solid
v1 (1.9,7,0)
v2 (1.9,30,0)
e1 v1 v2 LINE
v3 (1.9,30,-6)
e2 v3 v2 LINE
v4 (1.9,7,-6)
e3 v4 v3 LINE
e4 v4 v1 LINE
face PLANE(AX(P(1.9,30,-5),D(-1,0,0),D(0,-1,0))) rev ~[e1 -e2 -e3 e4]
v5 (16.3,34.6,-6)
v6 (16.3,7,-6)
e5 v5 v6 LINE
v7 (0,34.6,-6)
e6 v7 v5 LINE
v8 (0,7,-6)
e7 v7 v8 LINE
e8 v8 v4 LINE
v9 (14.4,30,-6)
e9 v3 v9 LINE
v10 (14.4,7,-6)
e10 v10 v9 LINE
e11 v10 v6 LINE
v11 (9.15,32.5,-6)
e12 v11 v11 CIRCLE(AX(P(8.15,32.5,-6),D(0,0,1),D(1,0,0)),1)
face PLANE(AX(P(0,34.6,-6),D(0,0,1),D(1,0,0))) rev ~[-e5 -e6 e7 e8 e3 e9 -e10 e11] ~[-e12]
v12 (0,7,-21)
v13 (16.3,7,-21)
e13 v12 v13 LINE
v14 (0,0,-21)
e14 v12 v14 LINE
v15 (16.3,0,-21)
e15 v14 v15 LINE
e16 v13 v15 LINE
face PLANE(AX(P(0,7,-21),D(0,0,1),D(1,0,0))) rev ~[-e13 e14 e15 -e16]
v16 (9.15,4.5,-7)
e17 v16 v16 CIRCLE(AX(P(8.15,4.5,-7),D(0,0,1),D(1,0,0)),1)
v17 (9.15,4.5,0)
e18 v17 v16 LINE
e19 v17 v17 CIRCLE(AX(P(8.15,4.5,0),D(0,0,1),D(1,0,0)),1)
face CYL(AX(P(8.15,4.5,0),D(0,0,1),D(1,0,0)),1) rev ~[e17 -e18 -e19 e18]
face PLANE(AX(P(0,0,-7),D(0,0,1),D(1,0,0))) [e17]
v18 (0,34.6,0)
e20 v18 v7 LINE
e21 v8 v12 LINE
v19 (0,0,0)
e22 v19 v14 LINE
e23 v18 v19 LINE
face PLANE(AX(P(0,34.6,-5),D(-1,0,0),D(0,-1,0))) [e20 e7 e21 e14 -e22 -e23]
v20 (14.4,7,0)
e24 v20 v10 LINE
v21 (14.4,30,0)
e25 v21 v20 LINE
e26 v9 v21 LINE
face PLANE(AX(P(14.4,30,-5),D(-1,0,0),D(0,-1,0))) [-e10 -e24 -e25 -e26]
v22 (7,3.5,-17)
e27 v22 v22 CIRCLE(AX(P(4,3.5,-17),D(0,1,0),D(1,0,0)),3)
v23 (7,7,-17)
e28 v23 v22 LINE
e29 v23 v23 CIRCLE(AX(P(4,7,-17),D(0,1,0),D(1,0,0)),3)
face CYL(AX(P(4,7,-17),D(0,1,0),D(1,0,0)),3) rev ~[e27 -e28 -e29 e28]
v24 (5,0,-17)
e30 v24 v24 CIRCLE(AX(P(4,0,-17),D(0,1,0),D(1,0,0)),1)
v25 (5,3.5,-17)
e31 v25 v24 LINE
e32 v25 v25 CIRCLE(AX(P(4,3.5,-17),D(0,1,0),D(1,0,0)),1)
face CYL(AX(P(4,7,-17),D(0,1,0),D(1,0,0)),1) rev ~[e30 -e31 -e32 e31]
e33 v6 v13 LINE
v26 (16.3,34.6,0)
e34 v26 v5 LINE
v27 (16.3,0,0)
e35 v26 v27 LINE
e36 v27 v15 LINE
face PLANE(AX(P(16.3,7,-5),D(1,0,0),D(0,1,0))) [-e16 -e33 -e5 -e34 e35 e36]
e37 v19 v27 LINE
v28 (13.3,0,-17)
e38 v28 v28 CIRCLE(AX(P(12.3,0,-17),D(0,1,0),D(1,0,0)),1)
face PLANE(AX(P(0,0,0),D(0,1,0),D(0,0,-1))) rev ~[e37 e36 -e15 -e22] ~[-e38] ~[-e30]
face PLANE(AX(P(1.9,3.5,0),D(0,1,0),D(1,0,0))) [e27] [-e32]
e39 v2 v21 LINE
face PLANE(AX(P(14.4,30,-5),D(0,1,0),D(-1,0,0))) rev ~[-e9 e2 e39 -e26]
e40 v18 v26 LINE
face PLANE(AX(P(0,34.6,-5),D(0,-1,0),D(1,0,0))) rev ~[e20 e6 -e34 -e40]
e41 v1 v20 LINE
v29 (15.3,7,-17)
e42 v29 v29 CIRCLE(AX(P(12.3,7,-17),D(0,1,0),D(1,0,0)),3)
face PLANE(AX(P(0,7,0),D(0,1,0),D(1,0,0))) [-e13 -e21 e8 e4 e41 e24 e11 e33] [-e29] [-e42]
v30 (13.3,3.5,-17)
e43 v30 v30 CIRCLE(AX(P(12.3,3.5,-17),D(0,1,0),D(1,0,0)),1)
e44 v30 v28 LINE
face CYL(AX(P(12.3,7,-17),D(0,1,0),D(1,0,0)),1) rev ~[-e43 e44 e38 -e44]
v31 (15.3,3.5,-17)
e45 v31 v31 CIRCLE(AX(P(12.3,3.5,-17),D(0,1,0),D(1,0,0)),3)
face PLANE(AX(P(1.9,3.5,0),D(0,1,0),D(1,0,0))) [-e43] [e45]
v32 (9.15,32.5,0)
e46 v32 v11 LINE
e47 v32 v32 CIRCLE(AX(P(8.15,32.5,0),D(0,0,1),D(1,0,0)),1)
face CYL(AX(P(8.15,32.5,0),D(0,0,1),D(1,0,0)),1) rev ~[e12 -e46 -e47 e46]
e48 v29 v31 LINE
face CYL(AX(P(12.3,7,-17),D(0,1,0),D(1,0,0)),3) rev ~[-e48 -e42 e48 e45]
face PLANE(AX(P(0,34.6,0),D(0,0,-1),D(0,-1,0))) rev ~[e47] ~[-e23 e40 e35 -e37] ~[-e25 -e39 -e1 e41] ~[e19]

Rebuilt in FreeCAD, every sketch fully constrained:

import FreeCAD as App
import Part
import Sketcher
Q = App.Units.Quantity


def add_polygon(sketch, points):
    """Adds a closed chain of lines whose ends are joined by coincident constraints."""
    first, n = sketch.GeometryCount, len(points)
    for a, b in zip(points, points[1:] + points[:1]):
        sketch.addGeometry(Part.LineSegment(App.Vector(*a, 0), App.Vector(*b, 0)), False)
    for i in range(n):
        sketch.addConstraint(Sketcher.Constraint("Coincident", first + i, 2, first + (i + 1) % n, 1))

doc = App.newDocument("Part")
body = doc.addObject("PartDesign::Body", "Body")

sketch1 = doc.addObject("Sketcher::SketchObject", "Sketch")
body.addObject(sketch1)
sketch1.AttachmentSupport = (doc.YZ_Plane, [""])
sketch1.MapMode = "FlatFace"
add_polygon(sketch1, [(35, -5), (35, 0), (0, 0), (0, -40), (7, -40), (7, -5)])
sketch1.addConstraint(Sketcher.Constraint("Vertical", 0))
sketch1.addConstraint(Sketcher.Constraint("Horizontal", 1))
sketch1.addConstraint(Sketcher.Constraint("Vertical", 2))
sketch1.addConstraint(Sketcher.Constraint("Horizontal", 3))
sketch1.addConstraint(Sketcher.Constraint("Vertical", 4))
sketch1.addConstraint(Sketcher.Constraint("Horizontal", 5))
sketch1.addConstraint(Sketcher.Constraint("Coincident", 1, 2, -1, 1))
sketch1.addConstraint(Sketcher.Constraint("DistanceX", 3, 1, 3, 2, Q("7 mm")))
sketch1.addConstraint(Sketcher.Constraint("DistanceY", 0, 1, 0, 2, Q("5 mm")))
sketch1.addConstraint(Sketcher.Constraint("DistanceY", 2, 2, 2, 1, Q("40 mm")))
sketch1.addConstraint(Sketcher.Constraint("DistanceX", 1, 2, 1, 1, Q("34.6 mm")))
pad1 = doc.addObject("PartDesign::Pad", "Pad")
body.addObject(pad1)
pad1.Profile = sketch1
pad1.Length = 16.3

sketch2 = doc.addObject("Sketcher::SketchObject", "Sketch001")
body.addObject(sketch2)
sketch2.AttachmentSupport = (doc.XZ_Plane, [""])
sketch2.MapMode = "FlatFace"
sketch2.AttachmentOffset = App.Placement(App.Vector(0, 0, -7), App.Rotation())
sketch2.addGeometry(Part.Circle(App.Vector(12.3, -17, 0), App.Vector(0, 0, 1), 1), False)
sketch2.addGeometry(Part.Circle(App.Vector(4, -17, 0), App.Vector(0, 0, 1), 1), False)
sketch2.addConstraint(Sketcher.Constraint("Equal", 0, 1))
sketch2.addConstraint(Sketcher.Constraint("Horizontal", 0, 3, 1, 3))
sketch2.addConstraint(Sketcher.Constraint("Diameter", 0, Q("2 mm")))
sketch2.addConstraint(Sketcher.Constraint("DistanceX", -1, 1, 1, 3, Q("4 mm")))
sketch2.addConstraint(Sketcher.Constraint("DistanceY", 0, 3, -1, 1, Q("17 mm")))
sketch2.addConstraint(Sketcher.Constraint("DistanceX", -1, 1, 0, 3, Q("12.3 mm")))
pocket1 = doc.addObject("PartDesign::Pocket", "Pocket")
body.addObject(pocket1)
pocket1.Profile = sketch2
pocket1.Type = "ThroughAll"
pocket1.Reversed = True

sketch3 = doc.addObject("Sketcher::SketchObject", "Sketch002")
body.addObject(sketch3)
sketch3.AttachmentSupport = (doc.XY_Plane, [""])
sketch3.MapMode = "FlatFace"
sketch3.AttachmentOffset = App.Placement(App.Vector(0, 0, -5), App.Rotation())
add_polygon(sketch3, [(14, 7), (2, 7), (2, 30), (14, 30)])
sketch3.addConstraint(Sketcher.Constraint("Horizontal", 0))
sketch3.addConstraint(Sketcher.Constraint("Vertical", 1))
sketch3.addConstraint(Sketcher.Constraint("Horizontal", 2))
sketch3.addConstraint(Sketcher.Constraint("Vertical", 3))
sketch3.addConstraint(Sketcher.Constraint("DistanceY", 1, 1, 1, 2, Q("23 mm")))
sketch3.addConstraint(Sketcher.Constraint("DistanceX", 0, 2, 0, 1, Q("12.5 mm")))
sketch3.addConstraint(Sketcher.Constraint("DistanceX", -1, 1, 0, 2, Q("1.9 mm")))
sketch3.addConstraint(Sketcher.Constraint("DistanceY", -1, 1, 0, 2, Q("7 mm")))
pocket2 = doc.addObject("PartDesign::Pocket", "Pocket001")
body.addObject(pocket2)
pocket2.Profile = sketch3
pocket2.Length = 16.3
pocket2.Reversed = True

sketch4 = doc.addObject("Sketcher::SketchObject", "Sketch003")
body.addObject(sketch4)
sketch4.AttachmentSupport = (doc.XY_Plane, [""])
sketch4.MapMode = "FlatFace"
sketch4.AttachmentOffset = App.Placement(App.Vector(0, 0, -5), App.Rotation())
add_polygon(sketch4, [(0, 7), (0, 34.6), (16.3, 34.6), (16.3, 7), (14.4, 7), (14.4, 30), (1.9, 30), (1.9, 7)])
sketch4.addConstraint(Sketcher.Constraint("Vertical", 0))
sketch4.addConstraint(Sketcher.Constraint("Horizontal", 1))
sketch4.addConstraint(Sketcher.Constraint("Vertical", 2))
sketch4.addConstraint(Sketcher.Constraint("Horizontal", 3))
sketch4.addConstraint(Sketcher.Constraint("Vertical", 4))
sketch4.addConstraint(Sketcher.Constraint("Horizontal", 5))
sketch4.addConstraint(Sketcher.Constraint("Vertical", 6))
sketch4.addConstraint(Sketcher.Constraint("Horizontal", 7))
sketch4.addConstraint(Sketcher.Constraint("PointOnObject", 0, 2, -2))
sketch4.addConstraint(Sketcher.Constraint("Horizontal", 3, 2, 6, 2))
sketch4.addConstraint(Sketcher.Constraint("Equal", 3, 7))
sketch4.addConstraint(Sketcher.Constraint("DistanceX", 3, 2, 3, 1, Q("1.9 mm")))
sketch4.addConstraint(Sketcher.Constraint("DistanceY", 4, 1, 4, 2, Q("23 mm")))
sketch4.addConstraint(Sketcher.Constraint("DistanceX", 1, 1, 1, 2, Q("16.3 mm")))
sketch4.addConstraint(Sketcher.Constraint("DistanceY", 0, 1, 0, 2, Q("27.6 mm")))
sketch4.addConstraint(Sketcher.Constraint("DistanceY", -1, 1, 2, 2, Q("7 mm")))
pad2 = doc.addObject("PartDesign::Pad", "Pad001")
body.addObject(pad2)
pad2.Profile = sketch4
pad2.Length = 4
pad2.Reversed = True

sketch5 = doc.addObject("Sketcher::SketchObject", "Sketch004")
body.addObject(sketch5)
sketch5.AttachmentSupport = (doc.XY_Plane, [""])
sketch5.MapMode = "FlatFace"
sketch5.addGeometry(Part.Circle(App.Vector(8.2, 32.5, 0), App.Vector(0, 0, 1), 1), False)
sketch5.addGeometry(Part.Circle(App.Vector(8.2, 4.5, 0), App.Vector(0, 0, 1), 1), False)
sketch5.addConstraint(Sketcher.Constraint("Equal", 0, 1))
sketch5.addConstraint(Sketcher.Constraint("Vertical", 0, 3, 1, 3))
sketch5.addConstraint(Sketcher.Constraint("Diameter", 0, Q("2 mm")))
sketch5.addConstraint(Sketcher.Constraint("DistanceX", -1, 1, 0, 3, Q("8.15 mm")))
sketch5.addConstraint(Sketcher.Constraint("DistanceY", 1, 3, 0, 3, Q("28 mm")))
sketch5.addConstraint(Sketcher.Constraint("DistanceY", -1, 1, 0, 3, Q("32.5 mm")))
pocket3 = doc.addObject("PartDesign::Pocket", "Pocket002")
body.addObject(pocket3)
pocket3.Profile = sketch5
pocket3.Length = 7

sketch6 = doc.addObject("Sketcher::SketchObject", "Sketch005")
body.addObject(sketch6)
sketch6.AttachmentSupport = (doc.XZ_Plane, [""])
sketch6.MapMode = "FlatFace"
sketch6.AttachmentOffset = App.Placement(App.Vector(0, 0, -34.6), App.Rotation())
add_polygon(sketch6, [(0, -6), (16.3, -6), (16.3, -9), (0, -9)])
sketch6.addConstraint(Sketcher.Constraint("Horizontal", 0))
sketch6.addConstraint(Sketcher.Constraint("Vertical", 1))
sketch6.addConstraint(Sketcher.Constraint("Horizontal", 2))
sketch6.addConstraint(Sketcher.Constraint("Vertical", 3))
sketch6.addConstraint(Sketcher.Constraint("PointOnObject", 2, 2, -2))
sketch6.addConstraint(Sketcher.Constraint("DistanceY", 0, 2, -1, 1, Q("6 mm")))
sketch6.addConstraint(Sketcher.Constraint("DistanceY", 1, 2, 1, 1, Q("3 mm")))
sketch6.addConstraint(Sketcher.Constraint("DistanceX", 0, 1, 0, 2, Q("16.3 mm")))
pocket4 = doc.addObject("PartDesign::Pocket", "Pocket003")
body.addObject(pocket4)
pocket4.Profile = sketch6
pocket4.Length = 27.6
pocket4.Reversed = True

sketch7 = doc.addObject("Sketcher::SketchObject", "Sketch006")
body.addObject(sketch7)
sketch7.AttachmentSupport = (doc.XZ_Plane, [""])
sketch7.MapMode = "FlatFace"
sketch7.AttachmentOffset = App.Placement(App.Vector(0, 0, -7), App.Rotation())
add_polygon(sketch7, [(16, -40), (0, -40), (0, -21), (16, -21)])
sketch7.addConstraint(Sketcher.Constraint("Horizontal", 0))
sketch7.addConstraint(Sketcher.Constraint("Vertical", 1))
sketch7.addConstraint(Sketcher.Constraint("Horizontal", 2))
sketch7.addConstraint(Sketcher.Constraint("Vertical", 3))
sketch7.addConstraint(Sketcher.Constraint("PointOnObject", 0, 2, -2))
sketch7.addConstraint(Sketcher.Constraint("DistanceY", 1, 1, 1, 2, Q("19 mm")))
sketch7.addConstraint(Sketcher.Constraint("DistanceX", 0, 2, 0, 1, Q("16.3 mm")))
sketch7.addConstraint(Sketcher.Constraint("DistanceY", 0, 2, -1, 1, Q("40 mm")))
pocket5 = doc.addObject("PartDesign::Pocket", "Pocket004")
body.addObject(pocket5)
pocket5.Profile = sketch7
pocket5.Length = 10
pocket5.Reversed = True

sketch8 = doc.addObject("Sketcher::SketchObject", "Sketch007")
body.addObject(sketch8)
sketch8.AttachmentSupport = (doc.XZ_Plane, [""])
sketch8.MapMode = "FlatFace"
sketch8.AttachmentOffset = App.Placement(App.Vector(0, 0, -7), App.Rotation())
sketch8.addGeometry(Part.Circle(App.Vector(4, -17, 0), App.Vector(0, 0, 1), 3), False)
sketch8.addGeometry(Part.Circle(App.Vector(4, -17, 0), App.Vector(0, 0, 1), 1), False)
sketch8.addGeometry(Part.Circle(App.Vector(12.3, -17, 0), App.Vector(0, 0, 1), 3), False)
sketch8.addGeometry(Part.Circle(App.Vector(12.3, -17, 0), App.Vector(0, 0, 1), 1), False)
sketch8.addConstraint(Sketcher.Constraint("Coincident", 1, 3, 0, 3))
sketch8.addConstraint(Sketcher.Constraint("Coincident", 3, 3, 2, 3))
sketch8.addConstraint(Sketcher.Constraint("Equal", 0, 2))
sketch8.addConstraint(Sketcher.Constraint("Equal", 1, 3))
sketch8.addConstraint(Sketcher.Constraint("Horizontal", 1, 3, 2, 3))
sketch8.addConstraint(Sketcher.Constraint("Diameter", 0, Q("6 mm")))
sketch8.addConstraint(Sketcher.Constraint("Diameter", 1, Q("2 mm")))
sketch8.addConstraint(Sketcher.Constraint("DistanceX", -1, 1, 0, 3, Q("4 mm")))
sketch8.addConstraint(Sketcher.Constraint("DistanceY", 0, 3, -1, 1, Q("17 mm")))
sketch8.addConstraint(Sketcher.Constraint("DistanceX", -1, 1, 2, 3, Q("12.3 mm")))
pocket6 = doc.addObject("PartDesign::Pocket", "Pocket005")
body.addObject(pocket6)
pocket6.Profile = sketch8
pocket6.Length = 3.5
pocket6.Reversed = True

doc.recompute()
